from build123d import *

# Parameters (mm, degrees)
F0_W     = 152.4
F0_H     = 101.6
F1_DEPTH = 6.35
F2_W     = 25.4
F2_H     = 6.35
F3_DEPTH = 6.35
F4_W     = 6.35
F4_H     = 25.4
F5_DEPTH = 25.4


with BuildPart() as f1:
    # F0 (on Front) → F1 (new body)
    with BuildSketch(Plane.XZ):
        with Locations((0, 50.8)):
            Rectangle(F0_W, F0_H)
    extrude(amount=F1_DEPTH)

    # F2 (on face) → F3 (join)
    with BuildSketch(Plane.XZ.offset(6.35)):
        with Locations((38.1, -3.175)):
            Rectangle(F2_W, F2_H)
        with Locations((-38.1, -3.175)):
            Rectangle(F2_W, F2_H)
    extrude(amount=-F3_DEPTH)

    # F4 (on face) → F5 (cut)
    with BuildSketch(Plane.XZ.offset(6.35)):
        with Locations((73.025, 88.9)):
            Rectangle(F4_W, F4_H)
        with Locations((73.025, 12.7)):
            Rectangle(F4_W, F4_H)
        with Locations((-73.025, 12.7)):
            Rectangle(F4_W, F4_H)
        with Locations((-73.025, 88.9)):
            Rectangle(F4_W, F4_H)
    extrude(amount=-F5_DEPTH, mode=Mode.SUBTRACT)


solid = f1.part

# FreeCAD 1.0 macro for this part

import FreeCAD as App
import Part
import Sketcher
from FreeCAD import Vector
Q = App.Units.Quantity


def add_polygon(sketch, points):
    """Adds a closed chain of lines whose ends are joined by coincident constraints."""
    first, n = sketch.GeometryCount, len(points)
    for a, b in zip(points, points[1:] + points[:1]):
        sketch.addGeometry(Part.LineSegment(App.Vector(*a, 0), App.Vector(*b, 0)), False)
    for i in range(n):
        sketch.addConstraint(Sketcher.Constraint("Coincident", first + i, 2, first + (i + 1) % n, 1))

doc = App.newDocument("Part")
body = doc.addObject("PartDesign::Body", "Body")

# Sketch on XZ plane
sketch1 = body.newObject("Sketcher::SketchObject", "Sketch")
sketch1.AttachmentSupport = (doc.getObject("XZ_Plane"), [""])
sketch1.MapMode = "FlatFace"
add_polygon(sketch1, [(-76, 102), (-76, 0), (76, 0), (76, 102)])  # lines 0-3
sketch1.addConstraint(Sketcher.Constraint("Vertical", 0))
sketch1.addConstraint(Sketcher.Constraint("Horizontal", 1))
sketch1.addConstraint(Sketcher.Constraint("Vertical", 2))
sketch1.addConstraint(Sketcher.Constraint("Horizontal", 3))
sketch1.addConstraint(Sketcher.Constraint("Symmetric", 0, 2, 1, 2, -1, 1))
sketch1.addConstraint(Sketcher.Constraint("DistanceX", 1, 1, 1, 2, Q("6 in")))
sketch1.addConstraint(Sketcher.Constraint("DistanceY", 0, 2, 0, 1, Q("4 in")))
pad1 = body.newObject("PartDesign::Pad", "Pad")
pad1.Profile = sketch1
pad1.Length = Q("0.25 in")

# Sketch on XZ plane
sketch2 = body.newObject("Sketcher::SketchObject", "Sketch001")
sketch2.AttachmentSupport = (doc.getObject("XZ_Plane"), [""])
sketch2.MapMode = "FlatFace"
sketch2.AttachmentOffset = App.Placement(Vector(0, 0, 0.25 * 25.4), App.Rotation())
add_polygon(sketch2, [(25, 0), (25, -6), (51, -6), (51, 0)])  # lines 0-3
add_polygon(sketch2, [(-51, 0), (-51, -6), (-25, -6), (-25, 0)])  # lines 4-7
sketch2.addConstraint(Sketcher.Constraint("Vertical", 0))
sketch2.addConstraint(Sketcher.Constraint("Horizontal", 1))
sketch2.addConstraint(Sketcher.Constraint("Vertical", 2))
sketch2.addConstraint(Sketcher.Constraint("Horizontal", 3))
sketch2.addConstraint(Sketcher.Constraint("Vertical", 4))
sketch2.addConstraint(Sketcher.Constraint("Horizontal", 5))
sketch2.addConstraint(Sketcher.Constraint("Vertical", 6))
sketch2.addConstraint(Sketcher.Constraint("Horizontal", 7))
sketch2.addConstraint(Sketcher.Constraint("Symmetric", 3, 2, 6, 2, -1, 1))
sketch2.addConstraint(Sketcher.Constraint("Symmetric", 1, 2, 4, 2, -2))
sketch2.addConstraint(Sketcher.Constraint("PointOnObject", 2, 2, -1))
sketch2.addConstraint(Sketcher.Constraint("DistanceX", 1, 1, 1, 2, Q("1 in")))
sketch2.addConstraint(Sketcher.Constraint("DistanceX", -1, 1, 0, 2, Q("1 in")))
sketch2.addConstraint(Sketcher.Constraint("DistanceY", 0, 2, 0, 1, Q("0.25 in")))
pad2 = body.newObject("PartDesign::Pad", "Pad001")
pad2.Profile = sketch2
pad2.Length = Q("0.25 in")
pad2.Reversed = True

# Sketch on XZ plane
sketch3 = body.newObject("Sketcher::SketchObject", "Sketch002")
sketch3.AttachmentSupport = (doc.getObject("XZ_Plane"), [""])
sketch3.MapMode = "FlatFace"
sketch3.AttachmentOffset = App.Placement(Vector(0, 0, 0.25 * 25.4), App.Rotation())
add_polygon(sketch3, [(70, 102), (70, 76), (76, 76), (76, 102)])  # lines 0-3
add_polygon(sketch3, [(70, 25), (70, 0), (76, 0), (76, 25)])  # lines 4-7
add_polygon(sketch3, [(-76, 25), (-76, 0), (-70, 0), (-70, 25)])  # lines 8-11
add_polygon(sketch3, [(-76, 102), (-76, 76), (-70, 76), (-70, 102)])  # lines 12-15
sketch3.addConstraint(Sketcher.Constraint("Vertical", 0))
sketch3.addConstraint(Sketcher.Constraint("Horizontal", 1))
sketch3.addConstraint(Sketcher.Constraint("Vertical", 2))
sketch3.addConstraint(Sketcher.Constraint("Horizontal", 3))
sketch3.addConstraint(Sketcher.Constraint("Vertical", 4))
sketch3.addConstraint(Sketcher.Constraint("Horizontal", 5))
sketch3.addConstraint(Sketcher.Constraint("Vertical", 6))
sketch3.addConstraint(Sketcher.Constraint("Horizontal", 7))
sketch3.addConstraint(Sketcher.Constraint("Vertical", 8))
sketch3.addConstraint(Sketcher.Constraint("Horizontal", 9))
sketch3.addConstraint(Sketcher.Constraint("Vertical", 10))
sketch3.addConstraint(Sketcher.Constraint("Horizontal", 11))
sketch3.addConstraint(Sketcher.Constraint("Vertical", 12))
sketch3.addConstraint(Sketcher.Constraint("Horizontal", 13))
sketch3.addConstraint(Sketcher.Constraint("Vertical", 14))
sketch3.addConstraint(Sketcher.Constraint("Horizontal", 15))
sketch3.addConstraint(Sketcher.Constraint("Symmetric", 5, 2, 8, 2, -1, 1))
sketch3.addConstraint(Sketcher.Constraint("Symmetric", 4, 2, 9, 2, -2))
sketch3.addConstraint(Sketcher.Constraint("Symmetric", 1, 2, 12, 2, -2))
sketch3.addConstraint(Sketcher.Constraint("Symmetric", 3, 2, 14, 2, -2))
sketch3.addConstraint(Sketcher.Constraint("Horizontal", 7, 2, 10, 2))
sketch3.addConstraint(Sketcher.Constraint("Vertical", 3, 2, 4, 2))
sketch3.addConstraint(Sketcher.Constraint("Vertical", 2, 2, 5, 2))
sketch3.addConstraint(Sketcher.Constraint("Equal", 2, 4))
sketch3.addConstraint(Sketcher.Constraint("DistanceY", 0, 2, 0, 1, Q("1 in")))
sketch3.addConstraint(Sketcher.Constraint("DistanceY", -1, 1, 0, 2, Q("3 in")))
sketch3.addConstraint(Sketcher.Constraint("DistanceX", -1, 1, 1, 2, Q("3 in")))
sketch3.addConstraint(Sketcher.Constraint("DistanceX", 1, 1, 1, 2, Q("0.25 in")))
pocket1 = body.newObject("PartDesign::Pocket", "Pocket")
pocket1.Profile = sketch3
pocket1.Length = Q("1 in")

doc.recompute()
